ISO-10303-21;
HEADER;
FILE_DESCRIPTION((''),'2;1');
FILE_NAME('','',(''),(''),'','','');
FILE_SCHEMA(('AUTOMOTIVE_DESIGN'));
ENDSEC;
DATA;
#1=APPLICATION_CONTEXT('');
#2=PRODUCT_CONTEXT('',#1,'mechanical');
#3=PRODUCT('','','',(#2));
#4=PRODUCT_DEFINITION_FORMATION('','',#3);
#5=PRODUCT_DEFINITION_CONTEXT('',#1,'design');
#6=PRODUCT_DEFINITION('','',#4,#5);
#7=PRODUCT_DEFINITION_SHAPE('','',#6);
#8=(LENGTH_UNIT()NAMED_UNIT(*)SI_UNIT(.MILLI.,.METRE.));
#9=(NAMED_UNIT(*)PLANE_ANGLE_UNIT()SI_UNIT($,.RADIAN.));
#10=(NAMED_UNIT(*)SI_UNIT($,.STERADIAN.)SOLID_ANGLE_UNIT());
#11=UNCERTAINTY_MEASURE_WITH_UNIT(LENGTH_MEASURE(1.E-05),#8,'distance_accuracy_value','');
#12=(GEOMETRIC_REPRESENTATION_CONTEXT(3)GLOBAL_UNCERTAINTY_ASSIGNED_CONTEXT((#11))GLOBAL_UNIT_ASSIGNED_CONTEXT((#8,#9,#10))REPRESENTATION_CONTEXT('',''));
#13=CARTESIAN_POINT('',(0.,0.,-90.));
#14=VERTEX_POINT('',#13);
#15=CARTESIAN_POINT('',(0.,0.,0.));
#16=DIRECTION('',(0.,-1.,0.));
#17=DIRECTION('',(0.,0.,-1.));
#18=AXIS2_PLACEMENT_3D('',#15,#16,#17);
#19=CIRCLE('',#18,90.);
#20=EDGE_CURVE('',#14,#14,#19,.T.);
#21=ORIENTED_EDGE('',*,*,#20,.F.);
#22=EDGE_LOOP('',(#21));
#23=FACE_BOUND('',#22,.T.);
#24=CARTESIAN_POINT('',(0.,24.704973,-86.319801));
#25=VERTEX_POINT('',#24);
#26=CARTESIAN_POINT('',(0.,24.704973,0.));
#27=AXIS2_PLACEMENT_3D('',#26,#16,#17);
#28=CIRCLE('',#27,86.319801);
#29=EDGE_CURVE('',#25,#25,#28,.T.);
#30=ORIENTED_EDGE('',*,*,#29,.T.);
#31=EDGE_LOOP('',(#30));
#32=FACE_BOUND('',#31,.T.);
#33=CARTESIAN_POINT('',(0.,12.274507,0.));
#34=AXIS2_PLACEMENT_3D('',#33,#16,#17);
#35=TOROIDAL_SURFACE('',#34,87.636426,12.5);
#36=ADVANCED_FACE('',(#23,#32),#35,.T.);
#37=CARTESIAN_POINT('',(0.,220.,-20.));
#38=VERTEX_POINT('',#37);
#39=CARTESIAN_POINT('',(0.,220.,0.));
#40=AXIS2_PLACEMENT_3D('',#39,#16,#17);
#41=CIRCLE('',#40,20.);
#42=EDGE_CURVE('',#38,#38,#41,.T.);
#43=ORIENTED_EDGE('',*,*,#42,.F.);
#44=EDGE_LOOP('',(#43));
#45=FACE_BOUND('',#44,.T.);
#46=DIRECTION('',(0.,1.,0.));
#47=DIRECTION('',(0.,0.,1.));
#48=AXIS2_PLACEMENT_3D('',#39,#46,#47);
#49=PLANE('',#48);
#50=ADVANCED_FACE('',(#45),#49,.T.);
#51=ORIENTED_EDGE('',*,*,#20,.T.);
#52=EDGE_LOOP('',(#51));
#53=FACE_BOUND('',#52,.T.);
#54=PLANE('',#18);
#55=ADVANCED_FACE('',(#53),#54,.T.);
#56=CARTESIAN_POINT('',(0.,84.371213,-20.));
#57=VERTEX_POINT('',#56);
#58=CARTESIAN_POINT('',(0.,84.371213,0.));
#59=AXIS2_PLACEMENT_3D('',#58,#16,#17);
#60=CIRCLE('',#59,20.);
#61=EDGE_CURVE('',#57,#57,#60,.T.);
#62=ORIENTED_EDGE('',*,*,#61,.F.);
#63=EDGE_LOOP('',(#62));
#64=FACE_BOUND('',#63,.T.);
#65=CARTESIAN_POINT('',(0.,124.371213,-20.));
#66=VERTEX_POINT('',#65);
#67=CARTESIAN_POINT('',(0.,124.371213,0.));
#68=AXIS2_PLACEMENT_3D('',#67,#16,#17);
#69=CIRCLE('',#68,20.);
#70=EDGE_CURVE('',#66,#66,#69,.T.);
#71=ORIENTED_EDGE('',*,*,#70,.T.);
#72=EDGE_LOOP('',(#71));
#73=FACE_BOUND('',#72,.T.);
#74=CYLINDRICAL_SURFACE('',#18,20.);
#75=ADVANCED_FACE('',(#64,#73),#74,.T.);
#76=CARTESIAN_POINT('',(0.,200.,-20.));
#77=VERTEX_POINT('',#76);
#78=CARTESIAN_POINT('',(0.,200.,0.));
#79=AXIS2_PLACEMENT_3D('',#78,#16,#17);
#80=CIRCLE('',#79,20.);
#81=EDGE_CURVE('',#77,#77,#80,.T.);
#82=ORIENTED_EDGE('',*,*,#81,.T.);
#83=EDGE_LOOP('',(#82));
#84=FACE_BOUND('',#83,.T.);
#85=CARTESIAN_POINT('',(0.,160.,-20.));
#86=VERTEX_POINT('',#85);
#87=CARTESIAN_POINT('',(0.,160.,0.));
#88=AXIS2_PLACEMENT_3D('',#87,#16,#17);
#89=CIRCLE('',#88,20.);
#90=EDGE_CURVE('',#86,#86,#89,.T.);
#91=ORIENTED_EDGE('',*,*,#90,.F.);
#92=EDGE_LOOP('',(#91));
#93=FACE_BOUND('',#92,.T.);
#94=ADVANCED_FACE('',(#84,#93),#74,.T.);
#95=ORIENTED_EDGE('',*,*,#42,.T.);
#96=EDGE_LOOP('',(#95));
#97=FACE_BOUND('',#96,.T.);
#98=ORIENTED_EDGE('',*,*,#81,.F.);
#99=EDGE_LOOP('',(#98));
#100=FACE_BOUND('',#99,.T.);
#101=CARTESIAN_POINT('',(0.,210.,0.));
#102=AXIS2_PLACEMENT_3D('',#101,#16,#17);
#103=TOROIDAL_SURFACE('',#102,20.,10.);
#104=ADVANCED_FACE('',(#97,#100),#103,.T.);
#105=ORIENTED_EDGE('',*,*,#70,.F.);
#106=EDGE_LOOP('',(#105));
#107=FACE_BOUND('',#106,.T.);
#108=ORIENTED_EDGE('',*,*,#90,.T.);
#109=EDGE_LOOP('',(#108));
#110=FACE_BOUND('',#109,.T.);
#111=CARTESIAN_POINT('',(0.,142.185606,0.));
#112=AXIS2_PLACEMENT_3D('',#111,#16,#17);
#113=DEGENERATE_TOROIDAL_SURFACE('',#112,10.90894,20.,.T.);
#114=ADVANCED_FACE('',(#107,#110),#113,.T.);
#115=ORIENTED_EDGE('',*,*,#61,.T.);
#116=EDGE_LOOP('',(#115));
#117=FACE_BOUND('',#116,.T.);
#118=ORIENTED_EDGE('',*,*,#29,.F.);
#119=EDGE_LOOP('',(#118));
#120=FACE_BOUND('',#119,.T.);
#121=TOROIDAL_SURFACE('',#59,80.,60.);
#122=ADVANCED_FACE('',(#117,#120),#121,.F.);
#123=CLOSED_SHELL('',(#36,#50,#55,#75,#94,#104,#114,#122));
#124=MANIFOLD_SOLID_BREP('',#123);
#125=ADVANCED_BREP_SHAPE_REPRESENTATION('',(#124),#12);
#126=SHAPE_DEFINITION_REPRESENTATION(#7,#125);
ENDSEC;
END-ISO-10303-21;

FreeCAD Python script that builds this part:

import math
import FreeCAD as App
import Part
import Sketcher
Q = App.Units.Quantity

doc = App.newDocument("Part")
body = doc.addObject("PartDesign::Body", "Body")

sketch1 = body.newObject("Sketcher::SketchObject", "Sketch")
sketch1.AttachmentSupport = (doc.getObject("XY_Plane"), [""])
sketch1.MapMode = "FlatFace"
sketch1.addGeometry(Part.LineSegment(App.Vector(0, 220, 0), App.Vector(0, 0, 0)), False)
sketch1.addGeometry(Part.LineSegment(App.Vector(0, 0, 0), App.Vector(90, 0, 0)), False)
sketch1.addGeometry(Part.ArcOfCircle(Part.Circle(App.Vector(88, 12, 0), App.Vector(0, 0, 1), 12), math.radians(-79), math.radians(96)), False)
sketch1.addGeometry(Part.ArcOfCircle(Part.Circle(App.Vector(80, 84, 0), App.Vector(0, 0, 1), 60), math.radians(180), math.radians(276)), False)
sketch1.addGeometry(Part.LineSegment(App.Vector(20, 84, 0), App.Vector(20, 124, 0)), False)
sketch1.addGeometry(Part.ArcOfCircle(Part.Circle(App.Vector(11, 142, 0), App.Vector(0, 0, 1), 20), math.radians(-63), math.radians(63)), False)
sketch1.addGeometry(Part.LineSegment(App.Vector(20, 160, 0), App.Vector(20, 200, 0)), False)
sketch1.addGeometry(Part.ArcOfCircle(Part.Circle(App.Vector(20, 210, 0), App.Vector(0, 0, 1), 10), math.radians(-90), math.radians(90)), False)
sketch1.addGeometry(Part.LineSegment(App.Vector(20, 220, 0), App.Vector(0, 220, 0)), False)
sketch1.addConstraint(Sketcher.Constraint("Coincident", 0, 2, 1, 1))
sketch1.addConstraint(Sketcher.Constraint("Coincident", 1, 2, 2, 1))
sketch1.addConstraint(Sketcher.Constraint("Tangent", 2, 2, 3, 2))
sketch1.addConstraint(Sketcher.Constraint("Tangent", 3, 1, 4, 1))
sketch1.addConstraint(Sketcher.Constraint("Coincident", 4, 2, 5, 1))
sketch1.addConstraint(Sketcher.Constraint("Coincident", 5, 2, 6, 1))
sketch1.addConstraint(Sketcher.Constraint("Coincident", 6, 2, 7, 1))
sketch1.addConstraint(Sketcher.Constraint("Tangent", 7, 2, 8, 1))
sketch1.addConstraint(Sketcher.Constraint("Coincident", 8, 2, 0, 1))
sketch1.addConstraint(Sketcher.Constraint("Vertical", 0))
sketch1.addConstraint(Sketcher.Constraint("Horizontal", 1))
sketch1.addConstraint(Sketcher.Constraint("Vertical", 4))
sketch1.addConstraint(Sketcher.Constraint("Vertical", 6))
sketch1.addConstraint(Sketcher.Constraint("Horizontal", 8))
sketch1.addConstraint(Sketcher.Constraint("Coincident", 0, 2, -1, 1))
sketch1.addConstraint(Sketcher.Constraint("Vertical", 7, 3, 3, 1))
sketch1.addConstraint(Sketcher.Constraint("Vertical", 4, 2, 5, 2))
sketch1.addConstraint(Sketcher.Constraint("Equal", 4, 6))
sketch1.addConstraint(Sketcher.Constraint("Radius", 3, Q("60 mm")))
sketch1.addConstraint(Sketcher.Constraint("Radius", 5, Q("20 mm")))
sketch1.addConstraint(Sketcher.Constraint("Radius", 7, Q("10 mm")))
sketch1.addConstraint(Sketcher.Constraint("Radius", 2, Q("12.5 mm")))
sketch1.addConstraint(Sketcher.Constraint("DistanceX", 1, 1, 1, 2, Q("90 mm")))
sketch1.addConstraint(Sketcher.Constraint("DistanceX", 8, 2, 8, 1, Q("20 mm")))
sketch1.addConstraint(Sketcher.Constraint("DistanceY", 0, 2, 0, 1, Q("220 mm")))
sketch1.addConstraint(Sketcher.Constraint("DistanceY", 4, 1, 4, 2, Q("40 mm")))
sketch1.addConstraint(Sketcher.Constraint("DistanceX", -1, 1, 2, 2, Q("86.319801 mm")))
revolution = body.newObject("PartDesign::Revolution", "Revolution")
revolution.Profile = sketch1
revolution.ReferenceAxis = (sketch1, ["V_Axis"])
revolution.Angle = 360

doc.recompute()
